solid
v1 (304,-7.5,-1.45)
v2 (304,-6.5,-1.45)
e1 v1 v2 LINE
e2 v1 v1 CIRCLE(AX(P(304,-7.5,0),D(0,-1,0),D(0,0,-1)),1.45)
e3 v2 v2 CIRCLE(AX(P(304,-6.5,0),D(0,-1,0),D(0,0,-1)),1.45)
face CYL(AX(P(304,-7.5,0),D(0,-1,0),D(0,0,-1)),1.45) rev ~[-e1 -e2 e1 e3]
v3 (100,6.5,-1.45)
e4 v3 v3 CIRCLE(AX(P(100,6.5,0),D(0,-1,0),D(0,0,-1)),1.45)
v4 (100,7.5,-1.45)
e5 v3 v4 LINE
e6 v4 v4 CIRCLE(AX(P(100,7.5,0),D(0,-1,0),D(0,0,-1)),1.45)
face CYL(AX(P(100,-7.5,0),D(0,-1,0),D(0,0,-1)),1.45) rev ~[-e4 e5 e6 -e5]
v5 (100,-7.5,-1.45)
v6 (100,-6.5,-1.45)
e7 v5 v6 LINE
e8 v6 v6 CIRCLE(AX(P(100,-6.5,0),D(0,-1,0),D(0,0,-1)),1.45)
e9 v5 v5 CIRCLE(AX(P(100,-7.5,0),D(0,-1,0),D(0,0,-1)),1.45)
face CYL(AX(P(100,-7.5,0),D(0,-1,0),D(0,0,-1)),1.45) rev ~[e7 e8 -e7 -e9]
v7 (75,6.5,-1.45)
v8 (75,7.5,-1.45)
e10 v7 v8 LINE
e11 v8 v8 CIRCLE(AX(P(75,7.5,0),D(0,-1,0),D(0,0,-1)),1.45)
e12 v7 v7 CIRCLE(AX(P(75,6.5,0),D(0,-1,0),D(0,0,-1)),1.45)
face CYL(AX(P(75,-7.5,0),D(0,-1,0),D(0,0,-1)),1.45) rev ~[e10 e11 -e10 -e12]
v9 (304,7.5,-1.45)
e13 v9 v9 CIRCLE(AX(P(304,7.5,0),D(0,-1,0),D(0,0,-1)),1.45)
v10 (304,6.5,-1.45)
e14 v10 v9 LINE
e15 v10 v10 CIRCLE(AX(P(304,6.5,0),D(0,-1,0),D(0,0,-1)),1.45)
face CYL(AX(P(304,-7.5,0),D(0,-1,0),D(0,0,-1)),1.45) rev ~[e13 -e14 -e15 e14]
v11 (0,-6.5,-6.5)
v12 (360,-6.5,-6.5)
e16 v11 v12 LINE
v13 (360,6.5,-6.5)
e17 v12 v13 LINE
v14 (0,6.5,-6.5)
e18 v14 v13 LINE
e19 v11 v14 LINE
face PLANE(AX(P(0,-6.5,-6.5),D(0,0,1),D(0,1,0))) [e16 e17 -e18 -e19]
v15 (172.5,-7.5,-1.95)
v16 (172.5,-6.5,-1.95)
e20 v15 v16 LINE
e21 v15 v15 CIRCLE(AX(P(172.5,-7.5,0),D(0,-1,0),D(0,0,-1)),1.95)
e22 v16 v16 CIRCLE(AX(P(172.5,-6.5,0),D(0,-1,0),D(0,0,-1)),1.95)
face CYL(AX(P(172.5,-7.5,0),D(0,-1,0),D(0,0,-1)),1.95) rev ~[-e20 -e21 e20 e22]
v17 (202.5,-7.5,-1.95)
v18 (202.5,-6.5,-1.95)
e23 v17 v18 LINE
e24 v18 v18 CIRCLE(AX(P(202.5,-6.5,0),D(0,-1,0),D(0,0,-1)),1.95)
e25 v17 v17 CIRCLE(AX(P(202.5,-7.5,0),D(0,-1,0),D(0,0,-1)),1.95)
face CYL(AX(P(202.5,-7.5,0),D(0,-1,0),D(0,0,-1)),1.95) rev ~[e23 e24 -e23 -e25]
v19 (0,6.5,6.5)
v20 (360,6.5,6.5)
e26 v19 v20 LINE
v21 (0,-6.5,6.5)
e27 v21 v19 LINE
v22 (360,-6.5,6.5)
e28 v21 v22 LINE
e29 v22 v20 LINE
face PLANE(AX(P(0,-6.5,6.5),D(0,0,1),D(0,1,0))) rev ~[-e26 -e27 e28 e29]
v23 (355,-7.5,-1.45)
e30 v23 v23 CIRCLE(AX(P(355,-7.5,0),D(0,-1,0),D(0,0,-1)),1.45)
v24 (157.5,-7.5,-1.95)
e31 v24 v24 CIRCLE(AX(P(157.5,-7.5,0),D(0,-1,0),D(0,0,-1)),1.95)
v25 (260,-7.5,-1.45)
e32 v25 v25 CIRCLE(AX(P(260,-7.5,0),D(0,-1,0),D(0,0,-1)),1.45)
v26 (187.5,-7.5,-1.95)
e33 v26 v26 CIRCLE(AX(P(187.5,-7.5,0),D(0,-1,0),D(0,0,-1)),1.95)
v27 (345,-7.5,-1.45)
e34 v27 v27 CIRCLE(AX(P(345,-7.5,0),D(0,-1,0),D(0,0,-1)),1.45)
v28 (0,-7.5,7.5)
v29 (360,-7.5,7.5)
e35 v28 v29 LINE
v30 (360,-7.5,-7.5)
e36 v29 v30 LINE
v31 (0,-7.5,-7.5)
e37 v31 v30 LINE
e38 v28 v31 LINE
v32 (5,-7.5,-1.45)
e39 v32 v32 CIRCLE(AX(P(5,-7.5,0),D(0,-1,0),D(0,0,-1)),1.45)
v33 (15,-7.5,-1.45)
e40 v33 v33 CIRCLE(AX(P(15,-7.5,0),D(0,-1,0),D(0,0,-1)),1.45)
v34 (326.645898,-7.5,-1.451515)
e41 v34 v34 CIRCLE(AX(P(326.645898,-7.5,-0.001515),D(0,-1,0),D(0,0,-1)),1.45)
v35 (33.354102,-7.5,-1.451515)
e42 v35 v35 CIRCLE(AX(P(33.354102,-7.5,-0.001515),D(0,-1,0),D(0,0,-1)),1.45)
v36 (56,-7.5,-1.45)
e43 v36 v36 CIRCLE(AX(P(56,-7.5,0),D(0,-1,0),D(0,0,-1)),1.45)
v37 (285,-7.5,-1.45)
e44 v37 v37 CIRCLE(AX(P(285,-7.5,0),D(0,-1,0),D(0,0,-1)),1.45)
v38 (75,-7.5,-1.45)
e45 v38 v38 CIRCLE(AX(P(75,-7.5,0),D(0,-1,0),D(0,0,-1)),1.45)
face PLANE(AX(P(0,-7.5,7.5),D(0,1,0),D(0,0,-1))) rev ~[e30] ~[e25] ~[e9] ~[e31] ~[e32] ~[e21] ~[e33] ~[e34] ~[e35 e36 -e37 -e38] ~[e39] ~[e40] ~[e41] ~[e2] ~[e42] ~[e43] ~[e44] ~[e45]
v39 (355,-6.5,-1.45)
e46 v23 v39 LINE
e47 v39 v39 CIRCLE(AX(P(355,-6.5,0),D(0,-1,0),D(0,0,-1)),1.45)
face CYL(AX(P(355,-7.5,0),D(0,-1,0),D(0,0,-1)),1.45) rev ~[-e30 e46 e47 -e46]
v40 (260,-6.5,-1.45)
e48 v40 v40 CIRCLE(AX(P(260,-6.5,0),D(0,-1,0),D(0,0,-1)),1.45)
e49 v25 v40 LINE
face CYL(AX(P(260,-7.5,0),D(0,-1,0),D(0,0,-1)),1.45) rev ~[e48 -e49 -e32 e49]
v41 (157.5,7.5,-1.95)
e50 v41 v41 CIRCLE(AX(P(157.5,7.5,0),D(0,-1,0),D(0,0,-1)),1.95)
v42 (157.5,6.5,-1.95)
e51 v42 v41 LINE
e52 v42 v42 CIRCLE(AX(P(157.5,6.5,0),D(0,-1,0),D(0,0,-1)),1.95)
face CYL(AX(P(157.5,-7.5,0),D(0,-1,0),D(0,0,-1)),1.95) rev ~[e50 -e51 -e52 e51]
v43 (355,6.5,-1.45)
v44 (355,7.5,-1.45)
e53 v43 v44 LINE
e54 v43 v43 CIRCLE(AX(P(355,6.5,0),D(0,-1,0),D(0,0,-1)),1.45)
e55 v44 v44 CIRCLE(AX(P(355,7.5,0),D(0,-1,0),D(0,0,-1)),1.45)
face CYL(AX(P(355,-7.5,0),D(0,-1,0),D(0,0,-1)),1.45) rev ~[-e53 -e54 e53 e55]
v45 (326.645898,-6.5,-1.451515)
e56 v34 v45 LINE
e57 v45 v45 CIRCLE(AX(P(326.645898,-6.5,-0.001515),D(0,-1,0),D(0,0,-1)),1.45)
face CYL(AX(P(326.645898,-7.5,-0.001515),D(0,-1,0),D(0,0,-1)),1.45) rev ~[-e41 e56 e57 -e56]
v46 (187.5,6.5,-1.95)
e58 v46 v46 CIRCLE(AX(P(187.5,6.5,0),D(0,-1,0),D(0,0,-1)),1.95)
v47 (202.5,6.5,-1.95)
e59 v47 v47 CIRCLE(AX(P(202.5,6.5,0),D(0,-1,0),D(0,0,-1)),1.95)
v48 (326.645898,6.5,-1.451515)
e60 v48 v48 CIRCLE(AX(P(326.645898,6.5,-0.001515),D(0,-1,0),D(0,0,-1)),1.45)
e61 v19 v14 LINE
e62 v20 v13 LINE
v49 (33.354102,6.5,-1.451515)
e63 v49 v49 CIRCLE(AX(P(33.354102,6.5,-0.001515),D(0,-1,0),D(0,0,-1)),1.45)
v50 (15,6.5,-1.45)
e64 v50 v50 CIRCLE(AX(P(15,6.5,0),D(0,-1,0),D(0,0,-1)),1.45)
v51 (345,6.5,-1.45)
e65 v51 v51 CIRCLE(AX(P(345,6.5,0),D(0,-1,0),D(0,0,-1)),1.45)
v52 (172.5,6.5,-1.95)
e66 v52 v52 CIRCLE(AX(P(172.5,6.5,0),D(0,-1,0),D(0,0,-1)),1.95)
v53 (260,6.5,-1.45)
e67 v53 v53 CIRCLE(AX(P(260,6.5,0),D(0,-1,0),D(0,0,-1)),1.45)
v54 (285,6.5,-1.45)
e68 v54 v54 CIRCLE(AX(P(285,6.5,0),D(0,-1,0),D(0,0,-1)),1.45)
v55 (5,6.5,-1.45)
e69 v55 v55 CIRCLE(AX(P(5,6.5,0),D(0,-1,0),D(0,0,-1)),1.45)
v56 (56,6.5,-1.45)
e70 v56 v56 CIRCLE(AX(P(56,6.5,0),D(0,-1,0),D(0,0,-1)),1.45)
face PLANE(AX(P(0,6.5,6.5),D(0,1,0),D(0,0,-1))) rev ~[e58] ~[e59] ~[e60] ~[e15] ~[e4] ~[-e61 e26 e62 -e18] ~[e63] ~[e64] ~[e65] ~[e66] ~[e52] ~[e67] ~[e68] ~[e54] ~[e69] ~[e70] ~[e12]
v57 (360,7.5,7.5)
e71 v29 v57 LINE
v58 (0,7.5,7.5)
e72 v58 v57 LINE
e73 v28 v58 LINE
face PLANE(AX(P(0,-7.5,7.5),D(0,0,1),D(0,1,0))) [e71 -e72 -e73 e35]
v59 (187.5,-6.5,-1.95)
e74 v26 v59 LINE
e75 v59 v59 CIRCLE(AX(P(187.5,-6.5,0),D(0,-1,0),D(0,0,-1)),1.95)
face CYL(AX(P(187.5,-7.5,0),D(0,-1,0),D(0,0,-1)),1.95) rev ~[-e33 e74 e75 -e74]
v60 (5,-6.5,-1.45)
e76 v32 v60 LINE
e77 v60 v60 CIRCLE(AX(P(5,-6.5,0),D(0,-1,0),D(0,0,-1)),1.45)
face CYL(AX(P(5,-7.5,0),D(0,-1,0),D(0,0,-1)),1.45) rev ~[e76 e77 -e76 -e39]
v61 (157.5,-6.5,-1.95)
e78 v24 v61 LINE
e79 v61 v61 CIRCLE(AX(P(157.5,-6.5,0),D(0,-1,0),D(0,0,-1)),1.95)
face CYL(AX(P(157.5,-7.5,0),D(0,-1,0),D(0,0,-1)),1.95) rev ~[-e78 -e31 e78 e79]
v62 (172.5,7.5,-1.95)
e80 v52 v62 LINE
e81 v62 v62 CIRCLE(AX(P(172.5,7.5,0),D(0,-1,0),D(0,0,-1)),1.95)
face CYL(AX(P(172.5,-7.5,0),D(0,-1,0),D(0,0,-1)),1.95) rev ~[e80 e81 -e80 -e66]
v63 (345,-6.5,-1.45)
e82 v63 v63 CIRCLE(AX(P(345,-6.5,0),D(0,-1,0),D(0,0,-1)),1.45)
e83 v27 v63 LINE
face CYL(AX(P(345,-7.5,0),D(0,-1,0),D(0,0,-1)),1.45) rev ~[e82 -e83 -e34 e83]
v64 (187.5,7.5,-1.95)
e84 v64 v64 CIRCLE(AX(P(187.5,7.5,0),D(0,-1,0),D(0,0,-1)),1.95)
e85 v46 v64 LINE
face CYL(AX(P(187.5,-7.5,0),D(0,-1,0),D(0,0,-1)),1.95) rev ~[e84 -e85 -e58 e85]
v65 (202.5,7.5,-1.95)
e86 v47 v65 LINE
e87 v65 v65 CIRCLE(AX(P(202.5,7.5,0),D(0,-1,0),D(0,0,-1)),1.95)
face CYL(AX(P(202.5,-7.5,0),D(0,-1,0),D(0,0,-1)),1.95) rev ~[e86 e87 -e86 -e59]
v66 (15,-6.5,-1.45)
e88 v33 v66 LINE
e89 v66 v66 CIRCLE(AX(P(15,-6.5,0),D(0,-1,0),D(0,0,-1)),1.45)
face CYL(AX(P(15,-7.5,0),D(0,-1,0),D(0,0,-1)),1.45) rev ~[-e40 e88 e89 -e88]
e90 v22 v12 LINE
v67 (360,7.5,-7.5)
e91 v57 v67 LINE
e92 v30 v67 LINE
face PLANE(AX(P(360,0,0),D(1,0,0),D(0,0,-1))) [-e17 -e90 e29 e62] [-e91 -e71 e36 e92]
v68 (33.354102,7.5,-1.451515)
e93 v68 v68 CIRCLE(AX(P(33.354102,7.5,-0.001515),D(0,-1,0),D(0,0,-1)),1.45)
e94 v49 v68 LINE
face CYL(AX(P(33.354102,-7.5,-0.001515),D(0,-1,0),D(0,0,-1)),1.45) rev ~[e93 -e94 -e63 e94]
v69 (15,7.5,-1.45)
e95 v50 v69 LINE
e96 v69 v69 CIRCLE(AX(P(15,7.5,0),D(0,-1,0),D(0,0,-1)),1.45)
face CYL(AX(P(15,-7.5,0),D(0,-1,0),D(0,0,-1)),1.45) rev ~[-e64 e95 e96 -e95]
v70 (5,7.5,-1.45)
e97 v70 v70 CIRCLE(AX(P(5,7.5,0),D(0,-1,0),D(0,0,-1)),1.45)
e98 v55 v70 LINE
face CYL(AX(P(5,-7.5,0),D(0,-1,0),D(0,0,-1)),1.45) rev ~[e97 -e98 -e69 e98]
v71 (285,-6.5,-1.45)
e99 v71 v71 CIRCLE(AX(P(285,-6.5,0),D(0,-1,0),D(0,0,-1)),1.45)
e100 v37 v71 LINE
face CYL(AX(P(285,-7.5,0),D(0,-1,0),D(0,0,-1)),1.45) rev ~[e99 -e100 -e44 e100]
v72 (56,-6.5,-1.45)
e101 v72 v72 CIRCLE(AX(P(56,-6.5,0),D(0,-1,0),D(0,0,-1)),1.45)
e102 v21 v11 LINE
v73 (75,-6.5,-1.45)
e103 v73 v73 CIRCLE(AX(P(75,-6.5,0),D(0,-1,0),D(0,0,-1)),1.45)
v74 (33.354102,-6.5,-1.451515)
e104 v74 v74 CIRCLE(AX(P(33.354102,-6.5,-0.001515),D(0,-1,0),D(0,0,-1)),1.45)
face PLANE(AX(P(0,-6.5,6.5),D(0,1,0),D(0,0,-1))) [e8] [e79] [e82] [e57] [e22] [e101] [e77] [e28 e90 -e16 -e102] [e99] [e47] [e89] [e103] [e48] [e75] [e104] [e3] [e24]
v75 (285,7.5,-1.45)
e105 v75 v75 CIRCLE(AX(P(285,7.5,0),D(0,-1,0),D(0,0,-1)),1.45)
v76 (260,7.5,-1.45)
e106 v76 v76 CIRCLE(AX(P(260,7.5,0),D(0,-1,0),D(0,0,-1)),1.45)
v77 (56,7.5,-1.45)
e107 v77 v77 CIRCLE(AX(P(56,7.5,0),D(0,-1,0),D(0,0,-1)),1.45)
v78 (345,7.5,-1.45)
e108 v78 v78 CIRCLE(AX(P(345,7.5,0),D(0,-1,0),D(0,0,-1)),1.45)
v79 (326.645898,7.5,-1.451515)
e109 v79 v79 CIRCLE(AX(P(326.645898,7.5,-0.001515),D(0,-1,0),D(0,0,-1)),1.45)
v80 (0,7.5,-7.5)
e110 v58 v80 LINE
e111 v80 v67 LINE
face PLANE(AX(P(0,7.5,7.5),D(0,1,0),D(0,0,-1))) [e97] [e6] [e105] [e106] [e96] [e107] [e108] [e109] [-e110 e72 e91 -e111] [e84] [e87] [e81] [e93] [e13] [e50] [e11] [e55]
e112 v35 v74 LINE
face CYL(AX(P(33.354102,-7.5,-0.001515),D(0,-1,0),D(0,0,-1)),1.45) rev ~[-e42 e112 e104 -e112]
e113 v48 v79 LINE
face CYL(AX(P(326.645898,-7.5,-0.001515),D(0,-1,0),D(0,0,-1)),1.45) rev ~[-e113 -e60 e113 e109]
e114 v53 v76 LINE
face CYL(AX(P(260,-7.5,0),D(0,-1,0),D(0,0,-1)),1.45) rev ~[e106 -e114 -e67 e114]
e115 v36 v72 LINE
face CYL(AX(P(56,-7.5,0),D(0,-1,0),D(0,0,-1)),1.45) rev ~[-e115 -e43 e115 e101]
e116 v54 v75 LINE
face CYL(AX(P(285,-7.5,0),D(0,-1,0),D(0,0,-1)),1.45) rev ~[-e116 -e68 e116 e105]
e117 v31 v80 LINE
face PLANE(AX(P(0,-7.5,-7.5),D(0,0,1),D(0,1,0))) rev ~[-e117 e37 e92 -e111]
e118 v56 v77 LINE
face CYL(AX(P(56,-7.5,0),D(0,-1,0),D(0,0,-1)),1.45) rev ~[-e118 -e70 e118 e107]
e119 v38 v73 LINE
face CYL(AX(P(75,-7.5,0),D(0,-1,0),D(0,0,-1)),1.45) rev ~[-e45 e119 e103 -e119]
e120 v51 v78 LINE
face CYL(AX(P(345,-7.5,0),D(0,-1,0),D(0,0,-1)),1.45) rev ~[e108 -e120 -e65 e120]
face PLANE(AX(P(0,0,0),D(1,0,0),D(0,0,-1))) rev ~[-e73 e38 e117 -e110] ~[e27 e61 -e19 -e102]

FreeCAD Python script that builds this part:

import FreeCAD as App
import Part
import Sketcher
from FreeCAD import Vector


def add_polygon(sketch, points):
    """Adds a closed chain of lines whose ends are joined by coincident constraints."""
    first, n = sketch.GeometryCount, len(points)
    for a, b in zip(points, points[1:] + points[:1]):
        sketch.addGeometry(Part.LineSegment(App.Vector(*a, 0), App.Vector(*b, 0)), False)
    for i in range(n):
        sketch.addConstraint(Sketcher.Constraint("Coincident", first + i, 2, first + (i + 1) % n, 1))

doc = App.newDocument("Part")
body = doc.addObject("PartDesign::Body", "Body")

sketch1 = body.newObject("Sketcher::SketchObject", "Sketch")
sketch1.AttachmentSupport = (doc.getObject("YZ_Plane"), [""])
sketch1.MapMode = "FlatFace"
add_polygon(sketch1, [(8, 8), (-8, 8), (-8, -8), (8, -8)])
add_polygon(sketch1, [(-6, -6), (-6, 6), (6, 6), (6, -6)])
sketch1.addConstraint(Sketcher.Constraint("Horizontal", 0))
sketch1.addConstraint(Sketcher.Constraint("Vertical", 1))
sketch1.addConstraint(Sketcher.Constraint("Horizontal", 2))
sketch1.addConstraint(Sketcher.Constraint("Vertical", 3))
sketch1.addConstraint(Sketcher.Constraint("Vertical", 4))
sketch1.addConstraint(Sketcher.Constraint("Horizontal", 5))
sketch1.addConstraint(Sketcher.Constraint("Vertical", 6))
sketch1.addConstraint(Sketcher.Constraint("Horizontal", 7))
sketch1.addConstraint(Sketcher.Constraint("Symmetric", 0, 2, 2, 2, -1, 1))
sketch1.addConstraint(Sketcher.Constraint("Symmetric", 4, 2, 6, 2, -1, 1))
sketch1.addConstraint(Sketcher.Constraint("Equal", 2, 1))
sketch1.addConstraint(Sketcher.Constraint("Equal", 7, 4))
sketch1.addConstraint(Sketcher.Constraint("DistanceX", 0, 2, 0, 1, 15.0))
sketch1.addConstraint(Sketcher.Constraint("DistanceX", 5, 1, 5, 2, 13.0))
pad1 = body.newObject("PartDesign::Pad", "Pad")
pad1.Profile = sketch1
pad1.Length = 360

sketch2 = body.newObject("Sketcher::SketchObject", "Sketch001")
sketch2.AttachmentSupport = (doc.getObject("XZ_Plane"), [""])
sketch2.MapMode = "FlatFace"
sketch2.AttachmentOffset = App.Placement(Vector(0, 0, 7.5), App.Rotation())
sketch2.addGeometry(Part.Circle(Vector(355, 0, 0), Vector(0, 0, 1), 1.4), False)
sketch2.addGeometry(Part.Circle(Vector(345, 0, 0), Vector(0, 0, 1), 1.4), False)
sketch2.addGeometry(Part.Circle(Vector(285, 0, 0), Vector(0, 0, 1), 1.4), False)
sketch2.addGeometry(Part.Circle(Vector(260, 0, 0), Vector(0, 0, 1), 1.4), False)
sketch2.addGeometry(Part.Circle(Vector(202.5, 0, 0), Vector(0, 0, 1), 1.9), False)
sketch2.addGeometry(Part.Circle(Vector(187.5, 0, 0), Vector(0, 0, 1), 1.9), False)
sketch2.addGeometry(Part.Circle(Vector(172.5, 0, 0), Vector(0, 0, 1), 1.9), False)
sketch2.addGeometry(Part.Circle(Vector(157.5, 0, 0), Vector(0, 0, 1), 1.9), False)
sketch2.addGeometry(Part.Circle(Vector(100, 0, 0), Vector(0, 0, 1), 1.4), False)
sketch2.addGeometry(Part.Circle(Vector(75, 0, 0), Vector(0, 0, 1), 1.4), False)
sketch2.addGeometry(Part.Circle(Vector(15, 0, 0), Vector(0, 0, 1), 1.4), False)
sketch2.addGeometry(Part.Circle(Vector(5, 0, 0), Vector(0, 0, 1), 1.4), False)
sketch2.addGeometry(Part.Circle(Vector(33.4, 0, 0), Vector(0, 0, 1), 1.4), False)
sketch2.addGeometry(Part.Circle(Vector(326.6, 0, 0), Vector(0, 0, 1), 1.4), False)
sketch2.addGeometry(Part.Circle(Vector(56, 0, 0), Vector(0, 0, 1), 1.4), False)
sketch2.addGeometry(Part.Circle(Vector(304, 0, 0), Vector(0, 0, 1), 1.4), False)
sketch2.addConstraint(Sketcher.Constraint("Equal", 0, 1))
sketch2.addConstraint(Sketcher.Constraint("Equal", 1, 2))
sketch2.addConstraint(Sketcher.Constraint("Equal", 2, 3))
sketch2.addConstraint(Sketcher.Constraint("Equal", 4, 5))
sketch2.addConstraint(Sketcher.Constraint("Equal", 5, 6))
sketch2.addConstraint(Sketcher.Constraint("Equal", 6, 7))
sketch2.addConstraint(Sketcher.Constraint("Equal", 3, 8))
sketch2.addConstraint(Sketcher.Constraint("Equal", 8, 9))
sketch2.addConstraint(Sketcher.Constraint("Equal", 9, 10))
sketch2.addConstraint(Sketcher.Constraint("Equal", 10, 11))
sketch2.addConstraint(Sketcher.Constraint("Equal", 11, 12))
sketch2.addConstraint(Sketcher.Constraint("Equal", 12, 13))
sketch2.addConstraint(Sketcher.Constraint("Equal", 13, 14))
sketch2.addConstraint(Sketcher.Constraint("Equal", 14, 15))
sketch2.addConstraint(Sketcher.Constraint("PointOnObject", 0, 3, -1))
sketch2.addConstraint(Sketcher.Constraint("PointOnObject", 1, 3, -1))
sketch2.addConstraint(Sketcher.Constraint("PointOnObject", 2, 3, -1))
sketch2.addConstraint(Sketcher.Constraint("PointOnObject", 3, 3, -1))
sketch2.addConstraint(Sketcher.Constraint("PointOnObject", 4, 3, -1))
sketch2.addConstraint(Sketcher.Constraint("PointOnObject", 5, 3, -1))
sketch2.addConstraint(Sketcher.Constraint("PointOnObject", 6, 3, -1))
sketch2.addConstraint(Sketcher.Constraint("PointOnObject", 7, 3, -1))
sketch2.addConstraint(Sketcher.Constraint("PointOnObject", 8, 3, -1))
sketch2.addConstraint(Sketcher.Constraint("PointOnObject", 9, 3, -1))
sketch2.addConstraint(Sketcher.Constraint("PointOnObject", 10, 3, -1))
sketch2.addConstraint(Sketcher.Constraint("PointOnObject", 11, 3, -1))
sketch2.addConstraint(Sketcher.Constraint("PointOnObject", 14, 3, -1))
sketch2.addConstraint(Sketcher.Constraint("PointOnObject", 15, 3, -1))
sketch2.addConstraint(Sketcher.Constraint("Horizontal", 12, 3, 13, 3))
sketch2.addConstraint(Sketcher.Constraint("Diameter", 0, 2.9))
sketch2.addConstraint(Sketcher.Constraint("Diameter", 4, 3.9))
sketch2.addConstraint(Sketcher.Constraint("DistanceX", -1, 1, 0, 3, 355.0))
sketch2.addConstraint(Sketcher.Constraint("DistanceX", -1, 1, 1, 3, 345.0))
sketch2.addConstraint(Sketcher.Constraint("DistanceX", -1, 1, 2, 3, 285.0))
sketch2.addConstraint(Sketcher.Constraint("DistanceX", -1, 1, 3, 3, 260.0))
sketch2.addConstraint(Sketcher.Constraint("DistanceX", -1, 1, 8, 3, 100.0))
sketch2.addConstraint(Sketcher.Constraint("DistanceX", -1, 1, 9, 3, 75.0))
sketch2.addConstraint(Sketcher.Constraint("DistanceX", -1, 1, 10, 3, 15.0))
sketch2.addConstraint(Sketcher.Constraint("DistanceX", -1, 1, 11, 3, 5.0))
sketch2.addConstraint(Sketcher.Constraint("DistanceX", -1, 1, 14, 3, 56.0))
sketch2.addConstraint(Sketcher.Constraint("DistanceX", -1, 1, 15, 3, 304.0))
sketch2.addConstraint(Sketcher.Constraint("DistanceX", 5, 3, 4, 3, 15.0))
sketch2.addConstraint(Sketcher.Constraint("DistanceX", 6, 3, 5, 3, 15.0))
sketch2.addConstraint(Sketcher.Constraint("DistanceX", 7, 3, 6, 3, 15.0))
sketch2.addConstraint(Sketcher.Constraint("DistanceX", -1, 1, 4, 3, 202.5))
sketch2.addConstraint(Sketcher.Constraint("DistanceX", -1, 1, 12, 3, 33.354102))
sketch2.addConstraint(Sketcher.Constraint("DistanceX", -1, 1, 13, 3, 326.645898))
sketch2.addConstraint(Sketcher.Constraint("DistanceY", 12, 3, -1, 1, 0.001515))
pocket1 = body.newObject("PartDesign::Pocket", "Pocket")
pocket1.Profile = sketch2
pocket1.Type = "ThroughAll"

doc.recompute()
